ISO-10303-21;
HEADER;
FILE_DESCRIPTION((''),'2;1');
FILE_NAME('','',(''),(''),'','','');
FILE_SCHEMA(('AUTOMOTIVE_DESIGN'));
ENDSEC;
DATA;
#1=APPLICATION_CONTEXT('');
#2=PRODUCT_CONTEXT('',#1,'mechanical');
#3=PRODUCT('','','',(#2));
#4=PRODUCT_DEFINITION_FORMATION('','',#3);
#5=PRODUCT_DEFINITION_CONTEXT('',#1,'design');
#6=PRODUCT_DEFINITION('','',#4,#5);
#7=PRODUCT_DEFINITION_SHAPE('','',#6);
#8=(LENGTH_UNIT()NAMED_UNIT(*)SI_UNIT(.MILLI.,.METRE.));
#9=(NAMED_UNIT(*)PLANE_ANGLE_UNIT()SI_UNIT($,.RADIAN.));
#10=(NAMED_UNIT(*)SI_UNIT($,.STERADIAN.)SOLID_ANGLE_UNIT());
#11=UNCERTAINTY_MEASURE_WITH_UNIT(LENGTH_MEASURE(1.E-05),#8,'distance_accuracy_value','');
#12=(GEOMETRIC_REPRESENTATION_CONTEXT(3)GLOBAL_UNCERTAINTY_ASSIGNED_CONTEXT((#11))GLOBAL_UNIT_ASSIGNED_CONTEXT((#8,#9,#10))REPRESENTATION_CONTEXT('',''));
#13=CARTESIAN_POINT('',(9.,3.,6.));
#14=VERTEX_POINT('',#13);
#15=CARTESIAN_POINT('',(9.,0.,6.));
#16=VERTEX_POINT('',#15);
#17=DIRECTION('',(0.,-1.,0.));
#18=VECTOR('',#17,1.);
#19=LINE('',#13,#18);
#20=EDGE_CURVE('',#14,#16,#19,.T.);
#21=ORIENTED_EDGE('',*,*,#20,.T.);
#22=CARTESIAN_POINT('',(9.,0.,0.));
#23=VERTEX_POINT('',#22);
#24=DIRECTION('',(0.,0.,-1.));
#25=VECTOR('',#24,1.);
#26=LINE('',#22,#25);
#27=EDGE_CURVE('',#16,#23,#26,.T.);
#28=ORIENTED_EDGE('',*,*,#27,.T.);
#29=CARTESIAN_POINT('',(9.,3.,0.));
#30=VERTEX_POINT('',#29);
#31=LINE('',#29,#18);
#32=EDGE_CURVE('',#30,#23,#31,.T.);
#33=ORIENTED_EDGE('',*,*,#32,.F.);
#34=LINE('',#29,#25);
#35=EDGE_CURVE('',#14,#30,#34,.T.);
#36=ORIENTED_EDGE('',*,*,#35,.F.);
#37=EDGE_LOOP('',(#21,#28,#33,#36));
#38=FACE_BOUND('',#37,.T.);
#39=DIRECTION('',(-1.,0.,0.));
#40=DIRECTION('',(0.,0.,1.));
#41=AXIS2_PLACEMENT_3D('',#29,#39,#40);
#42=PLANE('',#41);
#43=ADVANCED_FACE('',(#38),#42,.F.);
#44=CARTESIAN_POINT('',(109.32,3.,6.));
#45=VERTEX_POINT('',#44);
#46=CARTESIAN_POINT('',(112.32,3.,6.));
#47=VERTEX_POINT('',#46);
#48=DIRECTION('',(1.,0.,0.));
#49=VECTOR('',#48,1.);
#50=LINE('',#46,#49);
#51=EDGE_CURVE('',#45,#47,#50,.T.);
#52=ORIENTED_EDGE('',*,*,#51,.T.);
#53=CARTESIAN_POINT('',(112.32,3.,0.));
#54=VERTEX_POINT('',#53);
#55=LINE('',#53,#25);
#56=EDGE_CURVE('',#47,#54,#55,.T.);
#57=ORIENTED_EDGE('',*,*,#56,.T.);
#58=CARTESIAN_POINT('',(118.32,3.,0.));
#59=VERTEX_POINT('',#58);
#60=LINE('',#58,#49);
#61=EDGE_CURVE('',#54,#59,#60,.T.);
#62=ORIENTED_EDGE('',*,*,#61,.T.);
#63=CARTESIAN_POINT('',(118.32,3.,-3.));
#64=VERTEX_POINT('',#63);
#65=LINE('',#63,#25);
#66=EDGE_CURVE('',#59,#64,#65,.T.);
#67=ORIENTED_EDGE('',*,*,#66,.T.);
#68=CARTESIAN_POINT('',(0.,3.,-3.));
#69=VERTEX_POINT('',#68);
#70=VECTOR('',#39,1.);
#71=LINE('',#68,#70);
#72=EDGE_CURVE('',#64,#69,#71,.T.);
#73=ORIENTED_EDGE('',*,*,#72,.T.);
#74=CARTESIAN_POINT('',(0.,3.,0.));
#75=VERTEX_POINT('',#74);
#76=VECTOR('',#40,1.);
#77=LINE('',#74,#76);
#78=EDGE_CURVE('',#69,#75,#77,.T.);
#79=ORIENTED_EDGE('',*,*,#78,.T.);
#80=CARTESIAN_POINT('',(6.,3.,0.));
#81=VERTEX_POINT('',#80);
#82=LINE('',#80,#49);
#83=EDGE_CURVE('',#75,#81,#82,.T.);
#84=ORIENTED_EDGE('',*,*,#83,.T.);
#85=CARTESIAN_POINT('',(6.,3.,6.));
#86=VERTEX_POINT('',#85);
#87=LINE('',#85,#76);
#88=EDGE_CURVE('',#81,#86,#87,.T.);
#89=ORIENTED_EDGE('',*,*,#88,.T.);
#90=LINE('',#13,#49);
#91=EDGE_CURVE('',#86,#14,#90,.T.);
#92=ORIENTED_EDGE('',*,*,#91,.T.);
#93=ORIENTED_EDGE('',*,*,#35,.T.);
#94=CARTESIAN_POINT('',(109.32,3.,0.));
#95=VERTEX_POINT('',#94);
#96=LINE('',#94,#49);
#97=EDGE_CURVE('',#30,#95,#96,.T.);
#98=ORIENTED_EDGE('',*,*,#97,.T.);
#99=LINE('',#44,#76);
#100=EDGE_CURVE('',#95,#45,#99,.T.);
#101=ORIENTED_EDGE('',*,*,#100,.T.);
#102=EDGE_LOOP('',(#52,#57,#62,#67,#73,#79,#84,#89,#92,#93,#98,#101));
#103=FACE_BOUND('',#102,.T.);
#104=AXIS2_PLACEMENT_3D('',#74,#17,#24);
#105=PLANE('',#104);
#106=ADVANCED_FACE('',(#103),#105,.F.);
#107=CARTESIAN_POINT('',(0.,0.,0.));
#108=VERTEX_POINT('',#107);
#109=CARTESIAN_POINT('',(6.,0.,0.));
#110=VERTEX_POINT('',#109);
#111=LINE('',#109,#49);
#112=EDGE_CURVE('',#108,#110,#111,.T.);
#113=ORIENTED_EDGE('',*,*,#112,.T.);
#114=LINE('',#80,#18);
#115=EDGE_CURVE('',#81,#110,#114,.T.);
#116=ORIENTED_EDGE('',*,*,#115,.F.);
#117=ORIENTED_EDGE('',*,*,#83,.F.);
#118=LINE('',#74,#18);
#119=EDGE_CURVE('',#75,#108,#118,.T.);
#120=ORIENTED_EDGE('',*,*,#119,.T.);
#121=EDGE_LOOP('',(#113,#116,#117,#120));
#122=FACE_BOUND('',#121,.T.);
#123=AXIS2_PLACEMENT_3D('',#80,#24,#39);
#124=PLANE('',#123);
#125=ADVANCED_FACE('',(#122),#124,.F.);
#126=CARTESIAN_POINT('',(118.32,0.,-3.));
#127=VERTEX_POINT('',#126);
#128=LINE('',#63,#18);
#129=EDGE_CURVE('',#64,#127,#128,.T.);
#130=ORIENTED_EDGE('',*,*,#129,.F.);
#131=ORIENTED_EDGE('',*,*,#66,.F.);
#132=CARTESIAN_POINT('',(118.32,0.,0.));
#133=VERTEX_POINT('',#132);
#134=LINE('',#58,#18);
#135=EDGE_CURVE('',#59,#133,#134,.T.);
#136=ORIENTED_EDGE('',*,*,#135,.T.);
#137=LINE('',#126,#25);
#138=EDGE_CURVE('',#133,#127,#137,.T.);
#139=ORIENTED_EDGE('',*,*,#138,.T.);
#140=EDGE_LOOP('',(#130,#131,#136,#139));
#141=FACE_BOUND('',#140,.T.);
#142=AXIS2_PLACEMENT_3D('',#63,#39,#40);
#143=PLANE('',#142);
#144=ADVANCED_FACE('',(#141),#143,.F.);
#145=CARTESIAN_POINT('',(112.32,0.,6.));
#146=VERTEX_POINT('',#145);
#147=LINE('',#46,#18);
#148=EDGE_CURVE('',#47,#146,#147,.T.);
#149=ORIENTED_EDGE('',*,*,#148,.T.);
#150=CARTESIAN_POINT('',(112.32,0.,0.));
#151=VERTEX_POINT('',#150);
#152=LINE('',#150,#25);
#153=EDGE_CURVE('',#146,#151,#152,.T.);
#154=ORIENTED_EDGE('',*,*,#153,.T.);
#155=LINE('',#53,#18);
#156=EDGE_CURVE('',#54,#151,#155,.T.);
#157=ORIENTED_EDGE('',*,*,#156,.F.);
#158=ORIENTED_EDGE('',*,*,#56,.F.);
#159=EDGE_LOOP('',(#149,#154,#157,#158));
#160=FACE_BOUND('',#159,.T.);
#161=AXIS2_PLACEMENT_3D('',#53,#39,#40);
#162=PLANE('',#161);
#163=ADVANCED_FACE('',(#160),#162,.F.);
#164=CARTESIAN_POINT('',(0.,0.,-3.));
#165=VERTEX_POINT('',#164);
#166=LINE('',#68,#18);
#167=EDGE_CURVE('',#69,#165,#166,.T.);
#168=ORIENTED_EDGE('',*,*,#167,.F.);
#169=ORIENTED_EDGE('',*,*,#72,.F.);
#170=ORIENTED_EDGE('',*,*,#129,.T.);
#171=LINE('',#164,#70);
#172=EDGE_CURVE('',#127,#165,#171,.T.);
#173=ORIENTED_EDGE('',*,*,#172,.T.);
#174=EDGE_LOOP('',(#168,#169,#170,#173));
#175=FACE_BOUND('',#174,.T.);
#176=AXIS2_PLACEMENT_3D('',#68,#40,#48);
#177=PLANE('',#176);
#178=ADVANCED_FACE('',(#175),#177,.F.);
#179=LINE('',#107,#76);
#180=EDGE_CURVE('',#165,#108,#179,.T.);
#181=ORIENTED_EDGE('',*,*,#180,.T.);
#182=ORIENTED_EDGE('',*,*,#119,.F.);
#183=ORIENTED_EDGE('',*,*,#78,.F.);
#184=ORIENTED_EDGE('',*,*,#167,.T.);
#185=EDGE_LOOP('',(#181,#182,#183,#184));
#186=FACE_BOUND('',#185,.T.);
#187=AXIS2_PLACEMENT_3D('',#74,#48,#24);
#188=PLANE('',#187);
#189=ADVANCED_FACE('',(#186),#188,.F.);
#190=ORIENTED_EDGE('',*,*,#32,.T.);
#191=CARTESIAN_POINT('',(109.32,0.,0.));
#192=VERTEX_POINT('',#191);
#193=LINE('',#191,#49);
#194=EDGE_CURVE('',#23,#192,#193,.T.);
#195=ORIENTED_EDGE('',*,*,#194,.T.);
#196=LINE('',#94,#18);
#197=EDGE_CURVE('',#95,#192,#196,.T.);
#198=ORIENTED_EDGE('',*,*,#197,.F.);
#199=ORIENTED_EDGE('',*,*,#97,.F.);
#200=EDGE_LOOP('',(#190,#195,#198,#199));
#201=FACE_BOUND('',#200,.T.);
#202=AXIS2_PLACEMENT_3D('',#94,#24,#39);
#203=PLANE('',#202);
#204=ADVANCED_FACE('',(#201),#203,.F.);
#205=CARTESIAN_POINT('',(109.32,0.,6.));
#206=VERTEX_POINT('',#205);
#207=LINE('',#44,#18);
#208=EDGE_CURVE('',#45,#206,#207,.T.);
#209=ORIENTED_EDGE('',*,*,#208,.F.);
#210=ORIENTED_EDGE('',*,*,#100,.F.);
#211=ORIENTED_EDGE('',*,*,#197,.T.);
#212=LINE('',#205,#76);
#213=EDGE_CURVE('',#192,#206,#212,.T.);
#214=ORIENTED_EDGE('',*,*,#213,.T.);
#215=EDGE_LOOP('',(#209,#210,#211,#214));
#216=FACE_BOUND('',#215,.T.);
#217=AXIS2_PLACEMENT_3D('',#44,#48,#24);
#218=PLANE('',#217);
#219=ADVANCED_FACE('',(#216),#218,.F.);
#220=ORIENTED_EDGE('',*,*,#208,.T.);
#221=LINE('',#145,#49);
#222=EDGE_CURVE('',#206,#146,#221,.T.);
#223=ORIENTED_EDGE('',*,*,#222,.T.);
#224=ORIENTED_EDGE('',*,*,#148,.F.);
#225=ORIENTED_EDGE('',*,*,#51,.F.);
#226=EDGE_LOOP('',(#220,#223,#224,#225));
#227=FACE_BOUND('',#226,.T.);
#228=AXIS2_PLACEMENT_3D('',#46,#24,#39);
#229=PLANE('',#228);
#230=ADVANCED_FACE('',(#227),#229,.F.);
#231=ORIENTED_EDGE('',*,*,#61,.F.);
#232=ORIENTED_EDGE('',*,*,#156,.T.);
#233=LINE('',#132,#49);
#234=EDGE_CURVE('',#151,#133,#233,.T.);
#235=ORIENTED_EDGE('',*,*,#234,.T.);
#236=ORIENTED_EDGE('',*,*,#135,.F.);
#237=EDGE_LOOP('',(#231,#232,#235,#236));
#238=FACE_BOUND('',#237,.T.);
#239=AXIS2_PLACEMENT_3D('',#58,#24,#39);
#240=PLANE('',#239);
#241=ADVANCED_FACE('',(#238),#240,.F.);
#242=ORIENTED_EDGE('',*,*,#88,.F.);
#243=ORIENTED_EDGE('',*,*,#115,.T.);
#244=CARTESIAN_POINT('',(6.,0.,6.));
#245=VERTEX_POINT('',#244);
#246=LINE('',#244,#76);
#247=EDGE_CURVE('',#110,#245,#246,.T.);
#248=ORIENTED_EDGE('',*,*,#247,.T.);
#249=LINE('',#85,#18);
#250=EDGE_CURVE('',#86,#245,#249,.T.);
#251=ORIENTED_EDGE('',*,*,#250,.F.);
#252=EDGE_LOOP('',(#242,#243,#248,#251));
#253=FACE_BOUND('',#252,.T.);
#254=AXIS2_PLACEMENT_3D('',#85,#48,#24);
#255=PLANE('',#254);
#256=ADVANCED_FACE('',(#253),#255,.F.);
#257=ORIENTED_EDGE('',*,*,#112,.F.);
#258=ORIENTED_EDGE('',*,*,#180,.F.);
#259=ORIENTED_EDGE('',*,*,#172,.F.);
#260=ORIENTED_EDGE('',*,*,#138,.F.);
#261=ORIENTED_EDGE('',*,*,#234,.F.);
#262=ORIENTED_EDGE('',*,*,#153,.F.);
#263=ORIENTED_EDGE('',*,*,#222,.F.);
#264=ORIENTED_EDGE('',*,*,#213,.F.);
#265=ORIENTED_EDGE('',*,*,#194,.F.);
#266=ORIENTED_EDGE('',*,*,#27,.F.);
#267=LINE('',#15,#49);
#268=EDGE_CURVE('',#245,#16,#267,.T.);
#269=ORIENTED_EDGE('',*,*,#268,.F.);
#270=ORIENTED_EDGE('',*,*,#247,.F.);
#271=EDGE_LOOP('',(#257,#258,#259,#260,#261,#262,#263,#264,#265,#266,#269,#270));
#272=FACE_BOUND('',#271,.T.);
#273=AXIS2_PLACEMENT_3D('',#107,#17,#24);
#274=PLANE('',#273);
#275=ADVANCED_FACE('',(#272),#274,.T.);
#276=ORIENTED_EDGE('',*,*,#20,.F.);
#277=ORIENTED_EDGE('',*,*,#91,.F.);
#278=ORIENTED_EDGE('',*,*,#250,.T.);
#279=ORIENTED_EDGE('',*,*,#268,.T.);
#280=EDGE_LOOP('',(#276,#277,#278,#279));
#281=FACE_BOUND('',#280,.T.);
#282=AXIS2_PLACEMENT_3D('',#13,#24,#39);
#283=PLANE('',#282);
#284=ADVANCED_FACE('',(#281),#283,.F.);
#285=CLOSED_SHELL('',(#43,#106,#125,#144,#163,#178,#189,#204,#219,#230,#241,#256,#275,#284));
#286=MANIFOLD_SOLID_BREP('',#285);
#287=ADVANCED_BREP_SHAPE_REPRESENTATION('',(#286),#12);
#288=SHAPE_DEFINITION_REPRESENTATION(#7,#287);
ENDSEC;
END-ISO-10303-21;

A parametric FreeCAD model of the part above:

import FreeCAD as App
import Part
import Sketcher

V = App.Vector

doc = App.newDocument("Part")
params = doc.addObject("Spreadsheet::Sheet", "Params")
for row, (alias, value) in enumerate([
    ("sketch1_width", "6 mm"),
    ("sketch1_width2", "3 mm"),
    ("sketch1_width3", "100.32 mm"),
    ("pad1_length", "3 mm"),
], start=1):
    params.set(f"A{row}", alias)
    params.set(f"B{row}", "=" + value)
    params.setAlias(f"B{row}", alias)

body = doc.addObject("PartDesign::Body", "Body")

# Sketch on XZ plane
sketch1 = body.newObject("Sketcher::SketchObject", "Sketch")
sketch1.AttachmentSupport = (doc.getObject("XZ_Plane"), [""])
sketch1.MapMode = "FlatFace"
sketch1.addGeometry([
    Part.LineSegment(V(0, -3, 0), V(0, 0, 0)),  # 0
    Part.LineSegment(V(0, 0, 0), V(6, 0, 0)),  # 1
    Part.LineSegment(V(6, 0, 0), V(6, 6, 0)),  # 2
    Part.LineSegment(V(6, 6, 0), V(9, 6, 0)),  # 3
    Part.LineSegment(V(9, 6, 0), V(9, 0, 0)),  # 4
    Part.LineSegment(V(9, 0, 0), V(109.32, 0, 0)),  # 5
    Part.LineSegment(V(109.32, 0, 0), V(109.32, 6, 0)),  # 6
    Part.LineSegment(V(109.32, 6, 0), V(112.32, 6, 0)),  # 7
    Part.LineSegment(V(112.32, 6, 0), V(112.32, 0, 0)),  # 8
    Part.LineSegment(V(112.32, 0, 0), V(118.32, 0, 0)),  # 9
    Part.LineSegment(V(118.32, 0, 0), V(118.32, -3, 0)),  # 10
    Part.LineSegment(V(118.32, -3, 0), V(0, -3, 0)),  # 11
], False)
sketch1.addConstraint([
    Sketcher.Constraint("Coincident", 0, 2, 1, 1),
    Sketcher.Constraint("Coincident", 1, 2, 2, 1),
    Sketcher.Constraint("Coincident", 2, 2, 3, 1),
    Sketcher.Constraint("Coincident", 3, 2, 4, 1),
    Sketcher.Constraint("Coincident", 4, 2, 5, 1),
    Sketcher.Constraint("Coincident", 5, 2, 6, 1),
    Sketcher.Constraint("Coincident", 6, 2, 7, 1),
    Sketcher.Constraint("Coincident", 7, 2, 8, 1),
    Sketcher.Constraint("Coincident", 8, 2, 9, 1),
    Sketcher.Constraint("Coincident", 9, 2, 10, 1),
    Sketcher.Constraint("Coincident", 10, 2, 11, 1),
    Sketcher.Constraint("Coincident", 11, 2, 0, 1),
    Sketcher.Constraint("Vertical", 0),
    Sketcher.Constraint("Horizontal", 1),
    Sketcher.Constraint("Vertical", 2),
    Sketcher.Constraint("Horizontal", 3),
    Sketcher.Constraint("Vertical", 4),
    Sketcher.Constraint("Horizontal", 5),
    Sketcher.Constraint("Vertical", 6),
    Sketcher.Constraint("Horizontal", 7),
    Sketcher.Constraint("Vertical", 8),
    Sketcher.Constraint("Horizontal", 9),
    Sketcher.Constraint("Vertical", 10),
    Sketcher.Constraint("Horizontal", 11),
    Sketcher.Constraint("Coincident", 0, 2, -1, 1),
    Sketcher.Constraint("PointOnObject", 4, 2, -1),
    Sketcher.Constraint("PointOnObject", 8, 2, -1),
    Sketcher.Constraint("Horizontal", 3, 2, 6, 2),
    Sketcher.Constraint("Equal", 3, 7),
    Sketcher.Constraint("Equal", 1, 9),
    Sketcher.Constraint("Equal", 7, 0),
    Sketcher.Constraint("Equal", 9, 2),
    Sketcher.Constraint("DistanceX", 1, 1, 1, 2, 6.0),
    Sketcher.Constraint("DistanceX", 3, 1, 3, 2, 3.0),
    Sketcher.Constraint("DistanceX", 5, 1, 5, 2, 100.32),
])
sketch1.setExpression("Constraints[32]", "Params.sketch1_width")
sketch1.setExpression("Constraints[33]", "Params.sketch1_width2")
sketch1.setExpression("Constraints[34]", "Params.sketch1_width3")
pad1 = body.newObject("PartDesign::Pad", "Pad")
pad1.Profile = sketch1
pad1.setExpression("Length", "Params.pad1_length")
pad1.Reversed = True

doc.recompute()
